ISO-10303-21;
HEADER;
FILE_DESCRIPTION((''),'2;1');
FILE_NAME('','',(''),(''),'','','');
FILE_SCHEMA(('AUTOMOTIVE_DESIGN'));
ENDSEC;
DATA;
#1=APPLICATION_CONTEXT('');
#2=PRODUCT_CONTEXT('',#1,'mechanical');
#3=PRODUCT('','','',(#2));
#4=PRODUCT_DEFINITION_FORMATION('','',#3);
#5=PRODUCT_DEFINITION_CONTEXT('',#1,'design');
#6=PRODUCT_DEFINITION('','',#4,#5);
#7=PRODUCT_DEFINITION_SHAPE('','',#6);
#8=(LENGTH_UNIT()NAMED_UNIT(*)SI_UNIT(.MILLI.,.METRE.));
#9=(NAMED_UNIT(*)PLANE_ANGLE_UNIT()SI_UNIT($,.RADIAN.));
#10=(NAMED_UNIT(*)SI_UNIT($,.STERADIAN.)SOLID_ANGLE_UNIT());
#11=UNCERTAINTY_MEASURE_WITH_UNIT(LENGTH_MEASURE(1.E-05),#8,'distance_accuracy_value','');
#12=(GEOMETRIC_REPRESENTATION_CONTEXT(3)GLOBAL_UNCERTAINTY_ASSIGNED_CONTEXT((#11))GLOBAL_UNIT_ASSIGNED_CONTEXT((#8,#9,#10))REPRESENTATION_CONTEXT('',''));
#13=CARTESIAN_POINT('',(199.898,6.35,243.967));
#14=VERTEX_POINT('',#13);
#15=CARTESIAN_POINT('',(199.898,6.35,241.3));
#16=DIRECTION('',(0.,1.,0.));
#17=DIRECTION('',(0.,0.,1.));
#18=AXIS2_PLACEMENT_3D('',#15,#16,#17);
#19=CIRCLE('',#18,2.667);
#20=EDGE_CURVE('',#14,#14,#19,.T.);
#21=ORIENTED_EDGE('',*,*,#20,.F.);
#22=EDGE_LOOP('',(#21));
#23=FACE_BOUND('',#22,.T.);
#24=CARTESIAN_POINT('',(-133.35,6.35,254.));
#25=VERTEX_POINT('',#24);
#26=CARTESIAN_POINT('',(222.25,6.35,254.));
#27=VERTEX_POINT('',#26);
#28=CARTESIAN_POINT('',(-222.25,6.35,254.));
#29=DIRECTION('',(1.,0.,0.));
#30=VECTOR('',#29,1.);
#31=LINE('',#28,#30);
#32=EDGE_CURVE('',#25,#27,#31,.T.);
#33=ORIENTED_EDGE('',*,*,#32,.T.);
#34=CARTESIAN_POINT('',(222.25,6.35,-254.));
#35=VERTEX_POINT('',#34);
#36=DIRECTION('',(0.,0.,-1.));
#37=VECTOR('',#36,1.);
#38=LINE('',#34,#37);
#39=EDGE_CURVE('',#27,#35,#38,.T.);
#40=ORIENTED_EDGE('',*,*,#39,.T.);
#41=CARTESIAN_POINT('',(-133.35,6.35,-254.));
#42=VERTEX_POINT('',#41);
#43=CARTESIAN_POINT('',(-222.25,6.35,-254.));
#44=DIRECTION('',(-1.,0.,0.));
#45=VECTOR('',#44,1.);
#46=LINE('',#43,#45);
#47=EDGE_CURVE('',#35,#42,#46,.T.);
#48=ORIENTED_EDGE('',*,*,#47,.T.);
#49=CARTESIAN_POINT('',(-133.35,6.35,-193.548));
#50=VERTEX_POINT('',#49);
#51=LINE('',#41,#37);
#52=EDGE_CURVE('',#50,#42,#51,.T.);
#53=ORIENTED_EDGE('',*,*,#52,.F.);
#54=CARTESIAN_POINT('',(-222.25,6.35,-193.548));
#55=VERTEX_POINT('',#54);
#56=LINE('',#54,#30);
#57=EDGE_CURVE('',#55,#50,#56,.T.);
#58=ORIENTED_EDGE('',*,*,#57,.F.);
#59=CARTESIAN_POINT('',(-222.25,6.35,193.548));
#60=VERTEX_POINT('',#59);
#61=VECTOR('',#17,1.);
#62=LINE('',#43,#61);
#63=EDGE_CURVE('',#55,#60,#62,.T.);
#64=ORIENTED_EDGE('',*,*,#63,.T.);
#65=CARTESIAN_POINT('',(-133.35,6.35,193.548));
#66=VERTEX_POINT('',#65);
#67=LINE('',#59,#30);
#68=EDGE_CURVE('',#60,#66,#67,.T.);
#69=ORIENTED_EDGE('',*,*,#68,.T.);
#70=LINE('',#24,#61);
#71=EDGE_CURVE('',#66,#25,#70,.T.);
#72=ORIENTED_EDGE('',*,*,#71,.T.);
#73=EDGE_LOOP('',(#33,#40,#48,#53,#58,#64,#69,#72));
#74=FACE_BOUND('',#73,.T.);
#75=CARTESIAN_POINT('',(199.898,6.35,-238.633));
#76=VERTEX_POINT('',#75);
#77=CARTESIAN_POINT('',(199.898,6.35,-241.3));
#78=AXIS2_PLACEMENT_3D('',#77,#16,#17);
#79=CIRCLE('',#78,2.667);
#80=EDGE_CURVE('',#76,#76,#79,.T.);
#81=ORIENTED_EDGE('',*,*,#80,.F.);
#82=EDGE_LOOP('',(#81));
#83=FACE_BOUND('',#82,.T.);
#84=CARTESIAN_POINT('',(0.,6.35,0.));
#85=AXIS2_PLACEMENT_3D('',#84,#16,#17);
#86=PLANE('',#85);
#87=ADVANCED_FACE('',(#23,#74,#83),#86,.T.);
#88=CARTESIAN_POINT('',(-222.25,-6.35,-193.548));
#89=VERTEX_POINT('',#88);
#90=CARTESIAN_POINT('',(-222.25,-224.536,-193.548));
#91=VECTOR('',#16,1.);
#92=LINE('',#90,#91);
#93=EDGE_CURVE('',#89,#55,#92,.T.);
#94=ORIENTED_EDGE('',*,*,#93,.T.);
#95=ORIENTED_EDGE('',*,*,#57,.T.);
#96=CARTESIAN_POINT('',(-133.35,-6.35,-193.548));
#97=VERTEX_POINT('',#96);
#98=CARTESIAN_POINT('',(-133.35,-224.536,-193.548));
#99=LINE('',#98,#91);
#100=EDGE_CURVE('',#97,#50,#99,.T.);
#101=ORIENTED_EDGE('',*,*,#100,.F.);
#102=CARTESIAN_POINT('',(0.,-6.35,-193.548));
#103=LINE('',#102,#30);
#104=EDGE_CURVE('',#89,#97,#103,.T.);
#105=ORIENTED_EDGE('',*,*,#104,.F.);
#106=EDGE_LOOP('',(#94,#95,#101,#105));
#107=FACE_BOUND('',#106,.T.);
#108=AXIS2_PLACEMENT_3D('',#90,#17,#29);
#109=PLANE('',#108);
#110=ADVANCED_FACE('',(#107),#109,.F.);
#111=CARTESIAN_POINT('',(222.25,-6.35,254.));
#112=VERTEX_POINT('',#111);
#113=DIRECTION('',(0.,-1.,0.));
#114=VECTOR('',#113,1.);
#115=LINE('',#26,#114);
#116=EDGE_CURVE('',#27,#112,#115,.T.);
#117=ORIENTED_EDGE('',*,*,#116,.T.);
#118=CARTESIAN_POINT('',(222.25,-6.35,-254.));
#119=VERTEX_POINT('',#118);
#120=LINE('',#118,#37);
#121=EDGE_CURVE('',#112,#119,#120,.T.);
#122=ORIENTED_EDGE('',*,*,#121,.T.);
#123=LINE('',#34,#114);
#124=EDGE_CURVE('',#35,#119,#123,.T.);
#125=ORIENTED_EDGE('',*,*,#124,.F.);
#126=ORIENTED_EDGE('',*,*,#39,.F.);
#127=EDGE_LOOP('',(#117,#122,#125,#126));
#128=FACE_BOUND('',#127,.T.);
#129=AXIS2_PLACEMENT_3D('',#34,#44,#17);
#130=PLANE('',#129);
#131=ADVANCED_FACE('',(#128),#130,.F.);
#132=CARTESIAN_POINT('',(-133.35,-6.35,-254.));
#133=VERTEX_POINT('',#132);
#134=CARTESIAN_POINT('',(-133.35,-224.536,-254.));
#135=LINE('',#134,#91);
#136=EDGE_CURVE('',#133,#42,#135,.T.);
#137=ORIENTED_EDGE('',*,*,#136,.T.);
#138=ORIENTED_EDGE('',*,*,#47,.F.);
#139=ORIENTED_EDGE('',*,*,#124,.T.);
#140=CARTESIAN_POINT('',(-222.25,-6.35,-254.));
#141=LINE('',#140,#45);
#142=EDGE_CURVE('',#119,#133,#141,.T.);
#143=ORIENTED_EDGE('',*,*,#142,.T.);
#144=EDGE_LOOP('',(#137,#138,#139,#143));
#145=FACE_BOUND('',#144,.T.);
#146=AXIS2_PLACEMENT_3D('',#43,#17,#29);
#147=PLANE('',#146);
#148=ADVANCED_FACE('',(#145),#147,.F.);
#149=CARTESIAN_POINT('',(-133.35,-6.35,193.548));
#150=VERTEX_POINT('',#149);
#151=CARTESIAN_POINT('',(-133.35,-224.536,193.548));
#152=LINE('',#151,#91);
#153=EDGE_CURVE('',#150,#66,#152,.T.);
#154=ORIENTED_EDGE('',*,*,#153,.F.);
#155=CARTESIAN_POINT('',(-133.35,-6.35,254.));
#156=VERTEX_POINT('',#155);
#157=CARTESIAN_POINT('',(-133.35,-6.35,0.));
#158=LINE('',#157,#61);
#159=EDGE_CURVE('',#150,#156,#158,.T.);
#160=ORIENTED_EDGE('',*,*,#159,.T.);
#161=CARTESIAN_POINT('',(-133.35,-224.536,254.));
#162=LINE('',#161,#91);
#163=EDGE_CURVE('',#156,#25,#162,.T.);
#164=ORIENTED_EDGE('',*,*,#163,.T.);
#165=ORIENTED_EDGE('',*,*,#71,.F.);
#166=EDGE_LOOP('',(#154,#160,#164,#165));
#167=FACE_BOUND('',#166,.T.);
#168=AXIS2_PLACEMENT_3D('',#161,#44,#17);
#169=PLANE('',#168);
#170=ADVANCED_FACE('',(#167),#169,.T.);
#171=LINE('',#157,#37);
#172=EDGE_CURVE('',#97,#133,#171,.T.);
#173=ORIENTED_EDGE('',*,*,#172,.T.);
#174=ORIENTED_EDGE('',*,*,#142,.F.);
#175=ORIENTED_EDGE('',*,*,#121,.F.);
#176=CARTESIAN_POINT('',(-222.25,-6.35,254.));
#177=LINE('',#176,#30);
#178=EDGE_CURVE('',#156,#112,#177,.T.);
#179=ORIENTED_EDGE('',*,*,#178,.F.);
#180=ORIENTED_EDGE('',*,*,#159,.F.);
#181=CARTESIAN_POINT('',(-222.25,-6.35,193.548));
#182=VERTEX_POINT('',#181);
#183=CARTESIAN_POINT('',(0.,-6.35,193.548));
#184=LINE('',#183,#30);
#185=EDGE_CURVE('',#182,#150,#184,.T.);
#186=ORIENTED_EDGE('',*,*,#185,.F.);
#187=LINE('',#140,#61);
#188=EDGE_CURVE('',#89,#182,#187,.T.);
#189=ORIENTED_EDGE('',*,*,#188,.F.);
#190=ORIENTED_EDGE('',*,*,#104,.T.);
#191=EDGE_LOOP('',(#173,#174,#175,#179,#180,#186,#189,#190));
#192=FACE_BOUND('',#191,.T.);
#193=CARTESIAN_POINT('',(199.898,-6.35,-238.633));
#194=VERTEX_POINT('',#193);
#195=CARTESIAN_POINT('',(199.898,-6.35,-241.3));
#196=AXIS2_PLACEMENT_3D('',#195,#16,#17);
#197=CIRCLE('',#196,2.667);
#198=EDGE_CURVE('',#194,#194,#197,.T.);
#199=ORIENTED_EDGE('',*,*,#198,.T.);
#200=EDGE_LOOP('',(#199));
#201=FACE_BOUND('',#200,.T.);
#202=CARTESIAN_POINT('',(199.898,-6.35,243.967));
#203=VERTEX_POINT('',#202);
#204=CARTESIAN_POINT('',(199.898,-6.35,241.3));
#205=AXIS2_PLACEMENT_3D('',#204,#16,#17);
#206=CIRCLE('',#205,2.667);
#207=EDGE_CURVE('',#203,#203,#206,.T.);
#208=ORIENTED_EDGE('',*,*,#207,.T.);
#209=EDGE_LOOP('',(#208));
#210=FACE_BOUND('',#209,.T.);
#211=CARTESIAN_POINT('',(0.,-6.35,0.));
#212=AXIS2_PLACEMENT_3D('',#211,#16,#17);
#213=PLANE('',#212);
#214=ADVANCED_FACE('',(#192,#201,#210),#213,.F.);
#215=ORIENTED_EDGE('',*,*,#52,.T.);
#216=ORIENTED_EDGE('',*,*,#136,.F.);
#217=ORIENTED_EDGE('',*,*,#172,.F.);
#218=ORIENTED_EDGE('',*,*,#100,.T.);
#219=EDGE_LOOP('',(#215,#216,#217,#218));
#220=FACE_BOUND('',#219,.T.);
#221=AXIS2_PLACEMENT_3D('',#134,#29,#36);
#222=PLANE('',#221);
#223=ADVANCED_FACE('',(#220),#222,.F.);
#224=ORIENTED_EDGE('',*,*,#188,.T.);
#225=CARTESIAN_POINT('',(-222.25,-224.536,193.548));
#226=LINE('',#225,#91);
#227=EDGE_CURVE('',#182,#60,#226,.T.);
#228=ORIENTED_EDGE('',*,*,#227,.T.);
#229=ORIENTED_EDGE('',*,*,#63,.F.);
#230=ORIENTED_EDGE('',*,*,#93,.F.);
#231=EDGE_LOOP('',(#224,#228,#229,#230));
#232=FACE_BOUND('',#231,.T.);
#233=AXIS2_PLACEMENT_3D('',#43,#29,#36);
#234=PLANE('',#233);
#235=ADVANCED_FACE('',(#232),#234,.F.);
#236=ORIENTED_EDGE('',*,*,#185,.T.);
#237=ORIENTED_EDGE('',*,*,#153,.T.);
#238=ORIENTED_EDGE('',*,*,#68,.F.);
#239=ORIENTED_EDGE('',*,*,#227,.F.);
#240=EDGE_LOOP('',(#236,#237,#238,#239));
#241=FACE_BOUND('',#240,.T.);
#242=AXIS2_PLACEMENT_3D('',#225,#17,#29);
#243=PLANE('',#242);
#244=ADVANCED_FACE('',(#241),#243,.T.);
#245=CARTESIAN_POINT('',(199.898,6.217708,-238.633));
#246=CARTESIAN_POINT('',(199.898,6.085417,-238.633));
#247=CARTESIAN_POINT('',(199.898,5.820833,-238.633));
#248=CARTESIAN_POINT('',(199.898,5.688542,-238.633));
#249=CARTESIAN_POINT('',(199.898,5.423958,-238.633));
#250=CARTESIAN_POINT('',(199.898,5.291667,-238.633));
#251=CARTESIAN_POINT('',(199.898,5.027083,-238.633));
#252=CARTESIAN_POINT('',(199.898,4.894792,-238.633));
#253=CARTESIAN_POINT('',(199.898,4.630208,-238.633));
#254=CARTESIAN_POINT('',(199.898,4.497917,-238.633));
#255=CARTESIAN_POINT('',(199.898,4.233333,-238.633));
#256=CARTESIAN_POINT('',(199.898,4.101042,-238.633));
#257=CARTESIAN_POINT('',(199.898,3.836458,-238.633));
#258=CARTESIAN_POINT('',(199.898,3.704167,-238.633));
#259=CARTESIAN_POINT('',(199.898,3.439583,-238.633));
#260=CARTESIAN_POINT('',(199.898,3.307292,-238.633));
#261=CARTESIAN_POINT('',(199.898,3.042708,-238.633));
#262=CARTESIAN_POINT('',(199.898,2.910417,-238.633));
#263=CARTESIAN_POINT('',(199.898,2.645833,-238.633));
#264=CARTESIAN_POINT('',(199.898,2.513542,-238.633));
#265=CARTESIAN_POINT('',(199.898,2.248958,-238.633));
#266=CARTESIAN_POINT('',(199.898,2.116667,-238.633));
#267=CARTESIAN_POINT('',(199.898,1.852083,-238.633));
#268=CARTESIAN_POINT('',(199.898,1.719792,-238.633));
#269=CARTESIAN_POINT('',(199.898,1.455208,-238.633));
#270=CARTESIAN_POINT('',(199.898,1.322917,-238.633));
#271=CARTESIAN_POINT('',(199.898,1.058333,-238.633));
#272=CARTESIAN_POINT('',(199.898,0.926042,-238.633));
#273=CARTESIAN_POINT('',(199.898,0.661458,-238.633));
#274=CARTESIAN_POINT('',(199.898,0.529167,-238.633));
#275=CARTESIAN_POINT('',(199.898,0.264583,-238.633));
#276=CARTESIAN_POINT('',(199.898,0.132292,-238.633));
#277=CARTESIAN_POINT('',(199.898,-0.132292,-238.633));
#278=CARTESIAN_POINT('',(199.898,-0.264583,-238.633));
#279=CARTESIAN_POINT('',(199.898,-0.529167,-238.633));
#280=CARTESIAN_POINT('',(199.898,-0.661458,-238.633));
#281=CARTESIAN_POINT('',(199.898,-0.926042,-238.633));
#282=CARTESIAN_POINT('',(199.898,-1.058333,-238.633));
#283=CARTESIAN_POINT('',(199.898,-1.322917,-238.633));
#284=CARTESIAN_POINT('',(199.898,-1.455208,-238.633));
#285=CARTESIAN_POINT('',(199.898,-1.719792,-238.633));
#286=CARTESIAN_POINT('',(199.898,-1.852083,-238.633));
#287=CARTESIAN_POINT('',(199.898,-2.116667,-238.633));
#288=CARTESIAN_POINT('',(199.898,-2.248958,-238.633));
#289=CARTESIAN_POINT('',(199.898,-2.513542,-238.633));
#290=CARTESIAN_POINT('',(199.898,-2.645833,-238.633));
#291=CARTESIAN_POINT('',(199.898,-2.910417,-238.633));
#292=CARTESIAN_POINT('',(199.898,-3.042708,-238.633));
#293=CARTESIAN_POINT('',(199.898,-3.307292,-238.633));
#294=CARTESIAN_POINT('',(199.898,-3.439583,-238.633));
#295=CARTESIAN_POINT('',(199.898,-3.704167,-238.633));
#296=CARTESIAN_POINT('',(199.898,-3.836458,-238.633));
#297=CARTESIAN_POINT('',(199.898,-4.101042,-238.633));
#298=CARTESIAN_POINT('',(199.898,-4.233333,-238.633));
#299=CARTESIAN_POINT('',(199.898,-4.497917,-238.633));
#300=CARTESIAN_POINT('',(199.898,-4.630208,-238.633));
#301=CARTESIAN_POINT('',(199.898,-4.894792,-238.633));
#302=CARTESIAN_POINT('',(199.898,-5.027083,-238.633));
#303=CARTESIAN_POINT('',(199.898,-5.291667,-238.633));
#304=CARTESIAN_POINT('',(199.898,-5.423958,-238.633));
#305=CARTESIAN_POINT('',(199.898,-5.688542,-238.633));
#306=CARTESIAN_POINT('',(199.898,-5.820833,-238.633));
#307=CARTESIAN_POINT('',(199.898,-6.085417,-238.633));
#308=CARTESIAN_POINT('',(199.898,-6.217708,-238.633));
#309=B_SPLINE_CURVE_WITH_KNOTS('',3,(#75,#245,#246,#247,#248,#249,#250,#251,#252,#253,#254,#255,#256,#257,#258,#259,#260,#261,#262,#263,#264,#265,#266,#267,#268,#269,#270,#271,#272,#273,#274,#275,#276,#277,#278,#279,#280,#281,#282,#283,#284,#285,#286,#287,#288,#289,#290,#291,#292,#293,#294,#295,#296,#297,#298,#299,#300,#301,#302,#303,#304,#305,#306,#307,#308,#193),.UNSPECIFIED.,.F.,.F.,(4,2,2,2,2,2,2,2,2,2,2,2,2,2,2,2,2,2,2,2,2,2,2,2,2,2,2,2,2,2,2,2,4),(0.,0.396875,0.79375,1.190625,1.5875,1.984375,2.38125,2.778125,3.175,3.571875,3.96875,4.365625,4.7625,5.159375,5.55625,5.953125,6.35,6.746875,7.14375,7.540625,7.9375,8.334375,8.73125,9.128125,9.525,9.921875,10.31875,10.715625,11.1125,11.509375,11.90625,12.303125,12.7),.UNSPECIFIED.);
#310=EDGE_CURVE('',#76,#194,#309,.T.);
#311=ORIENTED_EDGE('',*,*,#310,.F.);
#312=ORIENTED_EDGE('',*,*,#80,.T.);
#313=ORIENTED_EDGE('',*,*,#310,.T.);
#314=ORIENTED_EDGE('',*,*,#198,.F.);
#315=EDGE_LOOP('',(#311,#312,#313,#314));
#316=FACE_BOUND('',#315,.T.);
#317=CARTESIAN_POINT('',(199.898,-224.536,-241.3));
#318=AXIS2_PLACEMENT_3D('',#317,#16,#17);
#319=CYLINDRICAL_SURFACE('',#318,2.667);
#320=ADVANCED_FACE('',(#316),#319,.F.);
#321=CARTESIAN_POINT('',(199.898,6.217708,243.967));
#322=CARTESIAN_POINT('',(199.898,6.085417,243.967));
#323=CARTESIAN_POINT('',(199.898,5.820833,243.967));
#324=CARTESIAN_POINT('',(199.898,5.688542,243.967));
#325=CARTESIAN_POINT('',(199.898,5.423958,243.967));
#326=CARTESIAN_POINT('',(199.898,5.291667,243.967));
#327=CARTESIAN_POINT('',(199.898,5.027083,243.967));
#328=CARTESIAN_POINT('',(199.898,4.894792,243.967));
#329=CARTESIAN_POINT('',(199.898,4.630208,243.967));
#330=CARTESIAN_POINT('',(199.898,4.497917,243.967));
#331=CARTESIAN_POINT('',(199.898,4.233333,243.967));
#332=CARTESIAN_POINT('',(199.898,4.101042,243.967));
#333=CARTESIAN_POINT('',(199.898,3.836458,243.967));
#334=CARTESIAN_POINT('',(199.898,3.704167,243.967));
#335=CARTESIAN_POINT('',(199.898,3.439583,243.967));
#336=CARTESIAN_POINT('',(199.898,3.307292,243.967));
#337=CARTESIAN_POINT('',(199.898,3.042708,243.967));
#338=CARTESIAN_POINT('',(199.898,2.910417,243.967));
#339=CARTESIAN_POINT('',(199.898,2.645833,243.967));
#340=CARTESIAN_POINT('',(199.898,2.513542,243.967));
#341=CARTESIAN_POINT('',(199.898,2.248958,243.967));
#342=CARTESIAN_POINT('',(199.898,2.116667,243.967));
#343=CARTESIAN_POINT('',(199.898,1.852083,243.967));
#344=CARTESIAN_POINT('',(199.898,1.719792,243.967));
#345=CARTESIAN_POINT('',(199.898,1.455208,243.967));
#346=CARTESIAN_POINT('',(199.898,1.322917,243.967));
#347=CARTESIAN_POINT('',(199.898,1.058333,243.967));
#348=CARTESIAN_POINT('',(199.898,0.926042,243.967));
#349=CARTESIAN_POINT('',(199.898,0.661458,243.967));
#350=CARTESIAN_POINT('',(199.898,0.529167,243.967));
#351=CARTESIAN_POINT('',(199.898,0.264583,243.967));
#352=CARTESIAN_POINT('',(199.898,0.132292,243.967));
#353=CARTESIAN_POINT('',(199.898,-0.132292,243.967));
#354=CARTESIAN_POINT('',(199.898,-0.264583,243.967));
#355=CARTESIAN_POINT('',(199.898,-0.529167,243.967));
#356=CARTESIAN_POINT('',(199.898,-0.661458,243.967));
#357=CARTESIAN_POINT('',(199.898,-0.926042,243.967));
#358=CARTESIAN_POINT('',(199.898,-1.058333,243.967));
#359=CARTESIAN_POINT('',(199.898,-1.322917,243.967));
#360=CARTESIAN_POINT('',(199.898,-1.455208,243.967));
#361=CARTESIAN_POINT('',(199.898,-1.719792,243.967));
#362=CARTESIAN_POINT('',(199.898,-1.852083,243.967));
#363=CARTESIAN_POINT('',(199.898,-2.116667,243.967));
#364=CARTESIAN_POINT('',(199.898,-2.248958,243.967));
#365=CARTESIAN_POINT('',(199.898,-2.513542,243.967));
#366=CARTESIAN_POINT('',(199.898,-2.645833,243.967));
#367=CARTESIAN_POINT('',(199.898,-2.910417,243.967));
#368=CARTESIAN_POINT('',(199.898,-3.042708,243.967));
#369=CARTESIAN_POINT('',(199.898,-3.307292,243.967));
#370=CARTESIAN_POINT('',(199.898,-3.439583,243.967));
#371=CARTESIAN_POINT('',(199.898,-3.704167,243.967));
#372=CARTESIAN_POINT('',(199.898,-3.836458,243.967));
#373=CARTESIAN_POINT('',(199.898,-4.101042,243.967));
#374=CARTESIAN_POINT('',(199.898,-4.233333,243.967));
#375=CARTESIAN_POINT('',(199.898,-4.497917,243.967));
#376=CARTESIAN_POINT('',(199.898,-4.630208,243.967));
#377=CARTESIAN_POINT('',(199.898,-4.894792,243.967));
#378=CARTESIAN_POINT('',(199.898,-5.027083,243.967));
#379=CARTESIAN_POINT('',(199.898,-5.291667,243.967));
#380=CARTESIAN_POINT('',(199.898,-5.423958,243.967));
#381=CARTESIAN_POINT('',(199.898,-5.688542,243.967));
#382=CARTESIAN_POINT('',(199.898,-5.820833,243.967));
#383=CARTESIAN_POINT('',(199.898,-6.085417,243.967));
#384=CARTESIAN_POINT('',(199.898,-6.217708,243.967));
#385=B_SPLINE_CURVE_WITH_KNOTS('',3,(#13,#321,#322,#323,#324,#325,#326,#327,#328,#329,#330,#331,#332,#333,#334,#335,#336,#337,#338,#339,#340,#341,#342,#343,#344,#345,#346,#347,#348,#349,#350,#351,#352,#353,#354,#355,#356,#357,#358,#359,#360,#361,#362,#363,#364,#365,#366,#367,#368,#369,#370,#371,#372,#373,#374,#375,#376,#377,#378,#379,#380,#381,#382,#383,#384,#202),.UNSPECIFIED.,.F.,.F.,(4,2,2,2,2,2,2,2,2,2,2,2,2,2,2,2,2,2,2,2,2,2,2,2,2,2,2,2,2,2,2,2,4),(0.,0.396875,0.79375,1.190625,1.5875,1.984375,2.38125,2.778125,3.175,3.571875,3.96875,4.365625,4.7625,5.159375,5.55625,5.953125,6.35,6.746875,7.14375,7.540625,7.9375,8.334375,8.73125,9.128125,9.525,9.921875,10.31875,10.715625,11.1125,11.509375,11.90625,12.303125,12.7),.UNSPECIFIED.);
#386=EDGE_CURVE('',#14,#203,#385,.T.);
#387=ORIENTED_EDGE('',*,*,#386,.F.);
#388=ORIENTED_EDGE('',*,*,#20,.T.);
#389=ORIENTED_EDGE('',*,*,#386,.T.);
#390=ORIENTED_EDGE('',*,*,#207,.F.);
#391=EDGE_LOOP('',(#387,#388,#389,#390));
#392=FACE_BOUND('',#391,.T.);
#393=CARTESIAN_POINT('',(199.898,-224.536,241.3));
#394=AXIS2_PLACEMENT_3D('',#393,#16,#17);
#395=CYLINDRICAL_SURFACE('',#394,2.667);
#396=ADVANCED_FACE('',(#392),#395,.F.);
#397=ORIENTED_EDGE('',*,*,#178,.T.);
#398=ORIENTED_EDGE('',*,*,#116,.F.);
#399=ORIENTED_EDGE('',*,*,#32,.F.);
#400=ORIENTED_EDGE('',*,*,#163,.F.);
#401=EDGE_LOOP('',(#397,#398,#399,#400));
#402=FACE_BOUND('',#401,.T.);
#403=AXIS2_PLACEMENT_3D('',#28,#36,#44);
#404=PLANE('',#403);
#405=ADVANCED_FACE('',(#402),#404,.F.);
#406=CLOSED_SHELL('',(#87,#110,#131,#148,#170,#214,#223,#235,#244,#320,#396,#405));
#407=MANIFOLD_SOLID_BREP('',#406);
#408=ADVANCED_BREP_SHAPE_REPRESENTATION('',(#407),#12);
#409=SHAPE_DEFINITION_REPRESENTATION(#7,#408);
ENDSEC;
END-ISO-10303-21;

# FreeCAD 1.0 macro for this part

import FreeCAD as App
import Part
import Sketcher
Q = App.Units.Quantity

doc = App.newDocument("Part")
body = doc.addObject("PartDesign::Body", "Body")

# Sketch on XZ plane
sketch1 = doc.addObject("Sketcher::SketchObject", "Sketch")
body.addObject(sketch1)
sketch1.AttachmentSupport = (doc.XZ_Plane, [""])
sketch1.MapMode = "FlatFace"
sketch1.addGeometry(Part.LineSegment(App.Vector(-222, -254, 0), App.Vector(-222, 254, 0)), False)
sketch1.addGeometry(Part.LineSegment(App.Vector(-222, 254, 0), App.Vector(222, 254, 0)), False)
sketch1.addGeometry(Part.LineSegment(App.Vector(222, 254, 0), App.Vector(222, -254, 0)), False)
sketch1.addGeometry(Part.LineSegment(App.Vector(222, -254, 0), App.Vector(-222, -254, 0)), False)
sketch1.addConstraint(Sketcher.Constraint("Coincident", 0, 2, 1, 1))
sketch1.addConstraint(Sketcher.Constraint("Coincident", 1, 2, 2, 1))
sketch1.addConstraint(Sketcher.Constraint("Coincident", 2, 2, 3, 1))
sketch1.addConstraint(Sketcher.Constraint("Coincident", 3, 2, 0, 1))
sketch1.addConstraint(Sketcher.Constraint("Vertical", 0))
sketch1.addConstraint(Sketcher.Constraint("Horizontal", 1))
sketch1.addConstraint(Sketcher.Constraint("Vertical", 2))
sketch1.addConstraint(Sketcher.Constraint("Horizontal", 3))
sketch1.addConstraint(Sketcher.Constraint("Symmetric", 0, 2, 2, 2, -1, 1))
sketch1.addConstraint(Sketcher.Constraint("DistanceY", 0, 1, 0, 2, Q("20 in")))
sketch1.addConstraint(Sketcher.Constraint("DistanceX", 1, 1, 1, 2, Q("17.5 in")))
pad1 = doc.addObject("PartDesign::Pad", "Pad")
body.addObject(pad1)
pad1.Profile = sketch1
pad1.Length = Q("0.5 in")
pad1.Midplane = True

# Sketch on XZ plane
sketch2 = doc.addObject("Sketcher::SketchObject", "Sketch001")
body.addObject(sketch2)
sketch2.AttachmentSupport = (doc.XZ_Plane, [""])
sketch2.MapMode = "FlatFace"
sketch2.AttachmentOffset = App.Placement(App.Vector(0, 0, -0.25 * 25.4), App.Rotation())
sketch2.addGeometry(Part.LineSegment(App.Vector(-222, -254, 0), App.Vector(-222, -194, 0)), False)
sketch2.addGeometry(Part.LineSegment(App.Vector(-222, -194, 0), App.Vector(-133, -194, 0)), False)
sketch2.addGeometry(Part.LineSegment(App.Vector(-133, -194, 0), App.Vector(-133, -254, 0)), False)
sketch2.addGeometry(Part.LineSegment(App.Vector(-133, -254, 0), App.Vector(-222, -254, 0)), False)
sketch2.addConstraint(Sketcher.Constraint("Coincident", 0, 2, 1, 1))
sketch2.addConstraint(Sketcher.Constraint("Coincident", 1, 2, 2, 1))
sketch2.addConstraint(Sketcher.Constraint("Coincident", 2, 2, 3, 1))
sketch2.addConstraint(Sketcher.Constraint("Coincident", 3, 2, 0, 1))
sketch2.addConstraint(Sketcher.Constraint("Vertical", 0))
sketch2.addConstraint(Sketcher.Constraint("Horizontal", 1))
sketch2.addConstraint(Sketcher.Constraint("Vertical", 2))
sketch2.addConstraint(Sketcher.Constraint("Horizontal", 3))
sketch2.addConstraint(Sketcher.Constraint("DistanceX", 1, 1, 1, 2, Q("3.5 in")))
sketch2.addConstraint(Sketcher.Constraint("DistanceY", 2, 2, -1, 1, Q("10 in")))
sketch2.addConstraint(Sketcher.Constraint("DistanceY", 0, 1, 0, 2, Q("2.38 in")))
sketch2.addConstraint(Sketcher.Constraint("DistanceX", 0, 2, -1, 1, Q("8.75 in")))
pocket1 = doc.addObject("PartDesign::Pocket", "Pocket")
body.addObject(pocket1)
pocket1.Profile = sketch2
pocket1.Length = Q("9.09 in")
pocket1.Reversed = True
doc.recompute()

mirrored = doc.addObject("PartDesign::Mirrored", "Mirrored")
body.addObject(mirrored)
mirrored.Originals = [pocket1]
mirrored.MirrorPlane = (doc.XY_Plane, [""])
body.Tip = mirrored

# Sketch on XZ plane
sketch3 = doc.addObject("Sketcher::SketchObject", "Sketch002")
body.addObject(sketch3)
sketch3.AttachmentSupport = (doc.XZ_Plane, [""])
sketch3.MapMode = "FlatFace"
sketch3.AttachmentOffset = App.Placement(App.Vector(0, 0, -0.25 * 25.4), App.Rotation())
sketch3.addGeometry(Part.Circle(App.Vector(199.9, 241.3, 0), App.Vector(0, 0, 1), 2.7), False)
sketch3.addGeometry(Part.Circle(App.Vector(199.9, -241.3, 0), App.Vector(0, 0, 1), 2.7), False)
sketch3.addConstraint(Sketcher.Constraint("Equal", 0, 1))
sketch3.addConstraint(Sketcher.Constraint("Symmetric", 0, 3, 1, 3, -1))
sketch3.addConstraint(Sketcher.Constraint("Diameter", 0, Q("0.21 in")))
sketch3.addConstraint(Sketcher.Constraint("DistanceY", 1, 3, 0, 3, Q("19 in")))
sketch3.addConstraint(Sketcher.Constraint("DistanceX", -1, 1, 0, 3, Q("7.87 in")))
pocket2 = doc.addObject("PartDesign::Pocket", "Pocket001")
body.addObject(pocket2)
pocket2.Profile = sketch3
pocket2.Length = Q("9.09 in")
pocket2.Reversed = True

doc.recompute()
